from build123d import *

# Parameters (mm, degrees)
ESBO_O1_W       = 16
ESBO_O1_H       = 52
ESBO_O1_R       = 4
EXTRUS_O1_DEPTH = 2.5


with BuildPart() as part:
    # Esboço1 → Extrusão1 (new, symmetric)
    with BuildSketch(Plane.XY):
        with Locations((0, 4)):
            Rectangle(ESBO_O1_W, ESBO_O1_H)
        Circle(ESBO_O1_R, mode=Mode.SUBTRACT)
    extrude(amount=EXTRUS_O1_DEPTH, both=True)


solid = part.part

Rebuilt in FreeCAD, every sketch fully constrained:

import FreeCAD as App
import Part
import Sketcher


def add_polygon(sketch, points):
    """Adds a closed chain of lines whose ends are joined by coincident constraints."""
    first, n = sketch.GeometryCount, len(points)
    for a, b in zip(points, points[1:] + points[:1]):
        sketch.addGeometry(Part.LineSegment(App.Vector(*a, 0), App.Vector(*b, 0)), False)
    for i in range(n):
        sketch.addConstraint(Sketcher.Constraint("Coincident", first + i, 2, first + (i + 1) % n, 1))

doc = App.newDocument("Part")
body = doc.addObject("PartDesign::Body", "Body")

# Sketch on XY plane
sketch1 = doc.addObject("Sketcher::SketchObject", "Sketch")
body.addObject(sketch1)
sketch1.AttachmentSupport = (doc.XY_Plane, [""])
sketch1.MapMode = "FlatFace"
add_polygon(sketch1, [(-8, 30), (-8, -22), (8, -22), (8, 30)])  # lines 0-3
sketch1.addGeometry(Part.Circle(App.Vector(0, 0, 0), App.Vector(0, 0, 1), 4), False)  # 4
sketch1.addConstraint([
    Sketcher.Constraint("Vertical", 0),
    Sketcher.Constraint("Horizontal", 1),
    Sketcher.Constraint("Vertical", 2),
    Sketcher.Constraint("Horizontal", 3),
    Sketcher.Constraint("Coincident", 4, 3, -1, 1),
    Sketcher.Constraint("Diameter", 4, 8.0),
    Sketcher.Constraint("DistanceX", 1, 1, 1, 2, 16.0),
    Sketcher.Constraint("DistanceY", 0, 2, 0, 1, 52.0),
    Sketcher.Constraint("DistanceX", 0, 2, -1, 1, 8.0),
    Sketcher.Constraint("DistanceY", 0, 2, -1, 1, 22.0),
])
pad1 = doc.addObject("PartDesign::Pad", "Pad")
body.addObject(pad1)
pad1.Profile = sketch1
pad1.Length = 5
pad1.Midplane = True

doc.recompute()
